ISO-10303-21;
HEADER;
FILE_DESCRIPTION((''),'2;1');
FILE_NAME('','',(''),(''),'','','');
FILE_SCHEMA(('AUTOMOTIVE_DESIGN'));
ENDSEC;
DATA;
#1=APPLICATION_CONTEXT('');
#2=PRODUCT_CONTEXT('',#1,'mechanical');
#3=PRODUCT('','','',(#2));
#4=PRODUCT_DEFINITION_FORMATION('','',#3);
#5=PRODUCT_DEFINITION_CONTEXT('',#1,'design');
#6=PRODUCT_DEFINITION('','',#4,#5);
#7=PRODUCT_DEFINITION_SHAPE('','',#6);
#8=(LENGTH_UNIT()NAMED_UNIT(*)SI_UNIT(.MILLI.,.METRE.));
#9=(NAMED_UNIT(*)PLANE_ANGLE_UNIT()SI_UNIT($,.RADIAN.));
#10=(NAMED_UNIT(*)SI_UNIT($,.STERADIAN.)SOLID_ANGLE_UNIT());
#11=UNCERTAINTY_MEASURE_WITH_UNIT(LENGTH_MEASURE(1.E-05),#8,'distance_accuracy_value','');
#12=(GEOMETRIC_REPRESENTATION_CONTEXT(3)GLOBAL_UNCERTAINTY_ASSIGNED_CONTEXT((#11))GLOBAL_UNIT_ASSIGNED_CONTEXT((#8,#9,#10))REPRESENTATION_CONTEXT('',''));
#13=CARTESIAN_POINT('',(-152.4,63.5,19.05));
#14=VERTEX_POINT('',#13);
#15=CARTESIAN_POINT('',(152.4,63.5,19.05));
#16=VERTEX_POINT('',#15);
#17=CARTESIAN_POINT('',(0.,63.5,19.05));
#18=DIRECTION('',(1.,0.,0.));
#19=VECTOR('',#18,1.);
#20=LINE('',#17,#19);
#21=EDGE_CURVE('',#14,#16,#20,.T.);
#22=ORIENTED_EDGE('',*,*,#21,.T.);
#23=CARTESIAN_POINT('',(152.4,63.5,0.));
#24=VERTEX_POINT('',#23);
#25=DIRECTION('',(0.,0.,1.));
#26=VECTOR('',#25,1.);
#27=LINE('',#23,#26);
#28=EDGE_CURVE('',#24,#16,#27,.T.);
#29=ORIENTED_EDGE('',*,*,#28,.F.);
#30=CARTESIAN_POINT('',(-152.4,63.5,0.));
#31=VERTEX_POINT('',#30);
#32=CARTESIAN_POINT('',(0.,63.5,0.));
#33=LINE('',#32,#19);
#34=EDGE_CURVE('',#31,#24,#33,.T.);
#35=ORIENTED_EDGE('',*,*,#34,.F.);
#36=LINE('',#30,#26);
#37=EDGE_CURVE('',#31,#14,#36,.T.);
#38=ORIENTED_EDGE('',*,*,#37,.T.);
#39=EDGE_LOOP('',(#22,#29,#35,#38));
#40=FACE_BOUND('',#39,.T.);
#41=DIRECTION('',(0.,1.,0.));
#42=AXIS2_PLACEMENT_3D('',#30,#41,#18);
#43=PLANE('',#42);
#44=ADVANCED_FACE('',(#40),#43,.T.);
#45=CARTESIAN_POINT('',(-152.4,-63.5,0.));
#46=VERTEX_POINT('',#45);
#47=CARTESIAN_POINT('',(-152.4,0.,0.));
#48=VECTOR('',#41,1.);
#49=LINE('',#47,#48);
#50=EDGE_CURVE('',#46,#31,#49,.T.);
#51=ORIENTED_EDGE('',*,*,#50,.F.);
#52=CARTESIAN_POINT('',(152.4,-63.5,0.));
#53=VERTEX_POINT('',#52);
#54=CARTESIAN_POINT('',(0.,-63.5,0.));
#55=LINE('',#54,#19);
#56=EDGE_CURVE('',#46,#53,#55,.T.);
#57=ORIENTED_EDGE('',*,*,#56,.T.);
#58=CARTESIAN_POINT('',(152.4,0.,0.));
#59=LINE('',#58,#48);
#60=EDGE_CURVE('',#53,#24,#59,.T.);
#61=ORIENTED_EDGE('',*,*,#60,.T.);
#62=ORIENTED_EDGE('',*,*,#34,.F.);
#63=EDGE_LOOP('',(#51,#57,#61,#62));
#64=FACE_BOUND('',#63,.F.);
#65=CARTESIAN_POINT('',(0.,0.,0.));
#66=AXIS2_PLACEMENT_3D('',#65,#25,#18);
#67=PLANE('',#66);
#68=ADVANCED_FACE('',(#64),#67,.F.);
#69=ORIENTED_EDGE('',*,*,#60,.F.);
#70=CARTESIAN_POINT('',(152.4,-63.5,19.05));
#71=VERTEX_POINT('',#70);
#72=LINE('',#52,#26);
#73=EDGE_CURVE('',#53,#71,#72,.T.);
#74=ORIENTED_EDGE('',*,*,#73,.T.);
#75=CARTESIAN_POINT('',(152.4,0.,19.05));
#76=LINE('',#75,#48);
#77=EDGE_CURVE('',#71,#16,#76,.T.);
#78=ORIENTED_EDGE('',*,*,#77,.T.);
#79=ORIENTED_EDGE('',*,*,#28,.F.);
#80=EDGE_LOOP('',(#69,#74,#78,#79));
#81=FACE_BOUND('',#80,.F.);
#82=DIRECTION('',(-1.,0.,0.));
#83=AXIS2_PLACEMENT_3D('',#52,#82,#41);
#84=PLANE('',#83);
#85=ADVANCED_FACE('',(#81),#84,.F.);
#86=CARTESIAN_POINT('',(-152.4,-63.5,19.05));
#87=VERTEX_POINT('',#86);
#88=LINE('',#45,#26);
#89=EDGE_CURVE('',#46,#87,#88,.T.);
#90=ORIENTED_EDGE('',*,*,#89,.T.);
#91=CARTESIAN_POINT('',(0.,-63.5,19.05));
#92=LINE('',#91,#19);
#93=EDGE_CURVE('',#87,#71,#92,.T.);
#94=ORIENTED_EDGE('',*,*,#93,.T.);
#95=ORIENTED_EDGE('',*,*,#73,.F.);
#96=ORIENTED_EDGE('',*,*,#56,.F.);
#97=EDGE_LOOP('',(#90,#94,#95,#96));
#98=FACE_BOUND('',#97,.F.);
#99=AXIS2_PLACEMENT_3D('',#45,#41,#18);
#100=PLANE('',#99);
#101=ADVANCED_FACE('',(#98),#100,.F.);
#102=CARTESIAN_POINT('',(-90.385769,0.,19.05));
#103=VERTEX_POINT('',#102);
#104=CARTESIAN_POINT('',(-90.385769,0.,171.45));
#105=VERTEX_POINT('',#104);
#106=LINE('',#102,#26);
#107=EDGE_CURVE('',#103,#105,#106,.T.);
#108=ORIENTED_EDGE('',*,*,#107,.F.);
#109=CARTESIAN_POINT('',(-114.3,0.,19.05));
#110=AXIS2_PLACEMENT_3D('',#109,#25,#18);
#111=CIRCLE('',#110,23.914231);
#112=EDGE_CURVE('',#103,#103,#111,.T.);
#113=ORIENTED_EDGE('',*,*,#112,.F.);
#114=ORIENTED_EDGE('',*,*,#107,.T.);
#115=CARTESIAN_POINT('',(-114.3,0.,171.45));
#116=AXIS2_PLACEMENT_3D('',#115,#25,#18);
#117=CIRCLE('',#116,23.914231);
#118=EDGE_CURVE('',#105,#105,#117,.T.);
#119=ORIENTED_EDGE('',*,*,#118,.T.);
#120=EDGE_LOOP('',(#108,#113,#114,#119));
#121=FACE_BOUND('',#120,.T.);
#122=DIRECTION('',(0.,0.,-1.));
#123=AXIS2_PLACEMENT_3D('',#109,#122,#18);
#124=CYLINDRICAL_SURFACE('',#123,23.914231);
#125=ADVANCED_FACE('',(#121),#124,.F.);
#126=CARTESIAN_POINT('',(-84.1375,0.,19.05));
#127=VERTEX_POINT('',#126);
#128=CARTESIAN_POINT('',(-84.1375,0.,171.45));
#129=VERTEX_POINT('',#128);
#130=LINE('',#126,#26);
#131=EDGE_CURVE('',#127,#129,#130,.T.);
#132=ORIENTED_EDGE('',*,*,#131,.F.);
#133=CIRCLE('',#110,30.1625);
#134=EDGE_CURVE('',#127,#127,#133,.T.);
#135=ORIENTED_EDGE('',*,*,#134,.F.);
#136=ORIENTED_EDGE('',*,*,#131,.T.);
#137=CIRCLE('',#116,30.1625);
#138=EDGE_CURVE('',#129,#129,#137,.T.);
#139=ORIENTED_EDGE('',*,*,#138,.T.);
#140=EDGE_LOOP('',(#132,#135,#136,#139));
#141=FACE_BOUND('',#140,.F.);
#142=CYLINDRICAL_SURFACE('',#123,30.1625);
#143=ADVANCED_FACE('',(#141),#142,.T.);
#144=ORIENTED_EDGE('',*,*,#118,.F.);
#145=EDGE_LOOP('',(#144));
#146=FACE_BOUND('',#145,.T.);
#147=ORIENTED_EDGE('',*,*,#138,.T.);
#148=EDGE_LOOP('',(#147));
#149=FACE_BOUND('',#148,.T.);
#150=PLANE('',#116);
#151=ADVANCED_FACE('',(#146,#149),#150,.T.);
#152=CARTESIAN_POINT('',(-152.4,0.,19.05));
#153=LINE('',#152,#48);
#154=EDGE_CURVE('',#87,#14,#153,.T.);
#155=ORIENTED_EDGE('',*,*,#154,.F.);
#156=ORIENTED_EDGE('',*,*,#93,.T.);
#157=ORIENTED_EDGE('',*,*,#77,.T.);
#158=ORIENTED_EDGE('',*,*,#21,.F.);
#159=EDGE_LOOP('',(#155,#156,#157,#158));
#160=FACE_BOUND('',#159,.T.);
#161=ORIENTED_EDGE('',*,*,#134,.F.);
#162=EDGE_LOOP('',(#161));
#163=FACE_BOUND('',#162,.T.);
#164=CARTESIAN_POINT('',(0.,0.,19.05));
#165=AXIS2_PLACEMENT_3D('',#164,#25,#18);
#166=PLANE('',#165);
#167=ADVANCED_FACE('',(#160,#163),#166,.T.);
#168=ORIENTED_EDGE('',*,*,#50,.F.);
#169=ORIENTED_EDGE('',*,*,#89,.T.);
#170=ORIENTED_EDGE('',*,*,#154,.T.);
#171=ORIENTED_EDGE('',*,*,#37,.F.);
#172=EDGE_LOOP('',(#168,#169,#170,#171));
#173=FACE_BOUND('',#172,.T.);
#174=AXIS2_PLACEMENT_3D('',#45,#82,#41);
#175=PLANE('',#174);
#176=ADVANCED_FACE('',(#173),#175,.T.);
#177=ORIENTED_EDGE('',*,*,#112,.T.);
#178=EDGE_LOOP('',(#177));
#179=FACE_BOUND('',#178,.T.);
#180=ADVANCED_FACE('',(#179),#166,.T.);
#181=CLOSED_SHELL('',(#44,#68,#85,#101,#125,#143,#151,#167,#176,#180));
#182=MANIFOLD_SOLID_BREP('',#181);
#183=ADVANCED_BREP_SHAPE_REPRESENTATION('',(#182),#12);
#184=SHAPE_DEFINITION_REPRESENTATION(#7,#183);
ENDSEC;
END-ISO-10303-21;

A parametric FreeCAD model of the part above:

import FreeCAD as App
import Part
import Sketcher
from FreeCAD import Vector
Q = App.Units.Quantity

doc = App.newDocument("Part")
body = doc.addObject("PartDesign::Body", "Body")

sketch1 = body.newObject("Sketcher::SketchObject", "Sketch")
sketch1.AttachmentSupport = (doc.getObject("XY_Plane"), [""])
sketch1.MapMode = "FlatFace"
sketch1.addGeometry(Part.LineSegment(Vector(-152, 64, 0), Vector(-152, -64, 0)), False)
sketch1.addGeometry(Part.LineSegment(Vector(-152, -64, 0), Vector(152, -64, 0)), False)
sketch1.addGeometry(Part.LineSegment(Vector(152, -64, 0), Vector(152, 64, 0)), False)
sketch1.addGeometry(Part.LineSegment(Vector(152, 64, 0), Vector(-152, 64, 0)), False)
sketch1.addConstraint(Sketcher.Constraint("Coincident", 0, 2, 1, 1))
sketch1.addConstraint(Sketcher.Constraint("Coincident", 1, 2, 2, 1))
sketch1.addConstraint(Sketcher.Constraint("Coincident", 2, 2, 3, 1))
sketch1.addConstraint(Sketcher.Constraint("Coincident", 3, 2, 0, 1))
sketch1.addConstraint(Sketcher.Constraint("Vertical", 0))
sketch1.addConstraint(Sketcher.Constraint("Horizontal", 1))
sketch1.addConstraint(Sketcher.Constraint("Vertical", 2))
sketch1.addConstraint(Sketcher.Constraint("Horizontal", 3))
sketch1.addConstraint(Sketcher.Constraint("Symmetric", 0, 2, 2, 2, -1, 1))
sketch1.addConstraint(Sketcher.Constraint("DistanceX", 1, 1, 1, 2, Q("12 in")))
sketch1.addConstraint(Sketcher.Constraint("DistanceY", 0, 2, 0, 1, Q("5 in")))
pad1 = body.newObject("PartDesign::Pad", "Pad")
pad1.Profile = sketch1
pad1.Length = Q("0.75 in")

sketch2 = body.newObject("Sketcher::SketchObject", "Sketch001")
sketch2.AttachmentSupport = (doc.getObject("XY_Plane"), [""])
sketch2.MapMode = "FlatFace"
sketch2.AttachmentOffset = App.Placement(Vector(0, 0, 0.75 * 25.4), App.Rotation())
sketch2.addGeometry(Part.Circle(Vector(-114, 0, 0), Vector(0, 0, 1), 30), False)
sketch2.addGeometry(Part.Circle(Vector(-114, 0, 0), Vector(0, 0, 1), 24), False)
sketch2.addConstraint(Sketcher.Constraint("Coincident", 1, 3, 0, 3))
sketch2.addConstraint(Sketcher.Constraint("PointOnObject", 0, 3, -1))
sketch2.addConstraint(Sketcher.Constraint("Diameter", 0, Q("2.375 in")))
sketch2.addConstraint(Sketcher.Constraint("DistanceX", 0, 3, -1, 1, Q("4.5 in")))
sketch2.addConstraint(Sketcher.Constraint("Diameter", 1, Q("47.828462 mm")))
pad2 = body.newObject("PartDesign::Pad", "Pad001")
pad2.Profile = sketch2
pad2.Length = Q("6 in")

doc.recompute()
